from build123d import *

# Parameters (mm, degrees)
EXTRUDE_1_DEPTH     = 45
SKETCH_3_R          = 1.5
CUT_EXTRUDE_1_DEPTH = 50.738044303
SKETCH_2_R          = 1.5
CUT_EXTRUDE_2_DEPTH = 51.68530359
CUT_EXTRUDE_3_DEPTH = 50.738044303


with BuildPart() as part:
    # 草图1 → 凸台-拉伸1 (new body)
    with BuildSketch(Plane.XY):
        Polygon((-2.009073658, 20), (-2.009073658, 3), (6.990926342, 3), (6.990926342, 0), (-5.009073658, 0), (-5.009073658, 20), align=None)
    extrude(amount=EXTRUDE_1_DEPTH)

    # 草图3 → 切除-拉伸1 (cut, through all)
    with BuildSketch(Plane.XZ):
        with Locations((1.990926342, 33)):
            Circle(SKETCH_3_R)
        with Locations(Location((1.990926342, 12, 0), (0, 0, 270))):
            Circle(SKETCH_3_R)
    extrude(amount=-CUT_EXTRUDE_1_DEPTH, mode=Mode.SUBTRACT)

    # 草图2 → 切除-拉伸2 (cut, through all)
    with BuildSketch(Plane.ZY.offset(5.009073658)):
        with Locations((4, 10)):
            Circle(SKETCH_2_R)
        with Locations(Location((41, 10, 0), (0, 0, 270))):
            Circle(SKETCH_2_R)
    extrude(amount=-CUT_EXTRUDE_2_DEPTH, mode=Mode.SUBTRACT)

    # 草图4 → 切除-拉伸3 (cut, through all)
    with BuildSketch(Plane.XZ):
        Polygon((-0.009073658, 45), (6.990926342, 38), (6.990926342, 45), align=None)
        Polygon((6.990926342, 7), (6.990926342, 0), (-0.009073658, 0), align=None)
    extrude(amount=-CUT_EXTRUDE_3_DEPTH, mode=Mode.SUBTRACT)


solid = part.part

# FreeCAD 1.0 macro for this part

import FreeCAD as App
import Part
import Sketcher
Q = App.Units.Quantity


def add_polygon(sketch, points):
    """Adds a closed chain of lines whose ends are joined by coincident constraints."""
    first, n = sketch.GeometryCount, len(points)
    for a, b in zip(points, points[1:] + points[:1]):
        sketch.addGeometry(Part.LineSegment(App.Vector(*a, 0), App.Vector(*b, 0)), False)
    for i in range(n):
        sketch.addConstraint(Sketcher.Constraint("Coincident", first + i, 2, first + (i + 1) % n, 1))

doc = App.newDocument("Part")
params = doc.addObject("Spreadsheet::Sheet", "Params")
for row, (alias, value) in enumerate([
    ("sketch1_width", "3 mm"),
    ("sketch1_width2", "12 mm"),
    ("sketch1_height", "17 mm"),
    ("pad1_length", "45 mm"),
    ("sketch2_diameter", "3 mm"),
    ("sketch3_diameter", "3 mm"),
    ("sketch4_width", "7 mm"),
], start=1):
    params.set(f"A{row}", alias)
    params.set(f"B{row}", "=" + value)
    params.setAlias(f"B{row}", alias)

body = doc.addObject("PartDesign::Body", "Body")

# Sketch on XY plane
sketch1 = doc.addObject("Sketcher::SketchObject", "Sketch")
body.addObject(sketch1)
sketch1.AttachmentSupport = (doc.XY_Plane, [""])
sketch1.MapMode = "FlatFace"
add_polygon(sketch1, [(-2.009074, 3), (-2.009074, 20), (-5.009074, 20), (-5.009074, 0), (6.990926, 0), (6.990926, 3)])  # lines 0-5
sketch1.addConstraint([
    Sketcher.Constraint("Vertical", 0),
    Sketcher.Constraint("Horizontal", 1),
    Sketcher.Constraint("Vertical", 2),
    Sketcher.Constraint("Horizontal", 3),
    Sketcher.Constraint("Vertical", 4),
    Sketcher.Constraint("Horizontal", 5),
    Sketcher.Constraint("PointOnObject", 2, 2, -1),
    Sketcher.Constraint("Equal", 1, 4),
    Sketcher.Constraint("DistanceX", 1, 2, 1, 1, Q("3 mm")),
    Sketcher.Constraint("DistanceX", 3, 1, 3, 2, Q("12 mm")),
    Sketcher.Constraint("DistanceY", 0, 1, 0, 2, Q("17 mm")),
    Sketcher.Constraint("DistanceX", 0, 2, -1, 1, Q("2.009074 mm")),
])
sketch1.setExpression("Constraints[14]", "Params.sketch1_width")
sketch1.setExpression("Constraints[15]", "Params.sketch1_width2")
sketch1.setExpression("Constraints[16]", "Params.sketch1_height")
pad1 = doc.addObject("PartDesign::Pad", "Pad")
body.addObject(pad1)
pad1.Profile = sketch1
pad1.setExpression("Length", "Params.pad1_length")

# Sketch on XZ plane
sketch2 = doc.addObject("Sketcher::SketchObject", "Sketch001")
body.addObject(sketch2)
sketch2.AttachmentSupport = (doc.XZ_Plane, [""])
sketch2.MapMode = "FlatFace"
sketch2.addGeometry([
    Part.Circle(App.Vector(1.990926, 33, 0), App.Vector(0, 0, 1), 1.5),
    Part.Circle(App.Vector(1.990926, 12, 0), App.Vector(0, 0, 1), 1.5),
], False)
sketch2.addConstraint([
    Sketcher.Constraint("Equal", 0, 1),
    Sketcher.Constraint("Vertical", 0, 3, 1, 3),
    Sketcher.Constraint("Diameter", 0, Q("3 mm")),
    Sketcher.Constraint("DistanceY", -1, 1, 0, 3, Q("33 mm")),
    Sketcher.Constraint("DistanceY", -1, 1, 1, 3, Q("12 mm")),
    Sketcher.Constraint("DistanceX", -1, 1, 0, 3, Q("1.990926 mm")),
])
sketch2.setExpression("Constraints[2]", "Params.sketch2_diameter")
pocket1 = doc.addObject("PartDesign::Pocket", "Pocket")
body.addObject(pocket1)
pocket1.Profile = sketch2
pocket1.Type = "ThroughAll"

# Sketch on YZ plane
sketch3 = doc.addObject("Sketcher::SketchObject", "Sketch002")
body.addObject(sketch3)
sketch3.AttachmentSupport = (doc.YZ_Plane, [""])
sketch3.MapMode = "FlatFace"
sketch3.AttachmentOffset = App.Placement(App.Vector(0, 0, -5.009074), App.Rotation())
sketch3.addGeometry([
    Part.Circle(App.Vector(10, 4, 0), App.Vector(0, 0, 1), 1.5),
    Part.Circle(App.Vector(10, 41, 0), App.Vector(0, 0, 1), 1.5),
], False)
sketch3.addConstraint([
    Sketcher.Constraint("Equal", 0, 1),
    Sketcher.Constraint("Vertical", 0, 3, 1, 3),
    Sketcher.Constraint("Diameter", 0, Q("3 mm")),
    Sketcher.Constraint("DistanceX", -1, 1, 0, 3, Q("10 mm")),
    Sketcher.Constraint("DistanceY", -1, 1, 0, 3, Q("4 mm")),
    Sketcher.Constraint("DistanceY", -1, 1, 1, 3, Q("41 mm")),
])
sketch3.setExpression("Constraints[2]", "Params.sketch3_diameter")
pocket2 = doc.addObject("PartDesign::Pocket", "Pocket001")
body.addObject(pocket2)
pocket2.Profile = sketch3
pocket2.Type = "ThroughAll"
pocket2.Reversed = True

# Sketch on XZ plane
sketch4 = doc.addObject("Sketcher::SketchObject", "Sketch003")
body.addObject(sketch4)
sketch4.AttachmentSupport = (doc.XZ_Plane, [""])
sketch4.MapMode = "FlatFace"
add_polygon(sketch4, [(-0.009074, 45), (6.990926, 38), (6.990926, 45)])  # lines 0-2
add_polygon(sketch4, [(6.990926, 0), (6.990926, 7), (-0.009074, 0)])  # lines 3-5
sketch4.addConstraint([
    Sketcher.Constraint("Vertical", 1),
    Sketcher.Constraint("Horizontal", 2),
    Sketcher.Constraint("Vertical", 3),
    Sketcher.Constraint("Horizontal", 5),
    Sketcher.Constraint("PointOnObject", 4, 2, -1),
    Sketcher.Constraint("Perpendicular", 0, 4),
    Sketcher.Constraint("Vertical", 1, 2, 3, 2),
    Sketcher.Constraint("Vertical", 2, 2, 4, 2),
    Sketcher.Constraint("Equal", 5, 1),
    Sketcher.Constraint("DistanceX", 2, 2, 2, 1, Q("7 mm")),
    Sketcher.Constraint("DistanceY", -1, 1, 0, 2, Q("38 mm")),
    Sketcher.Constraint("DistanceX", -1, 1, 0, 2, Q("6.990926 mm")),
])
sketch4.setExpression("Constraints[15]", "Params.sketch4_width")
pocket3 = doc.addObject("PartDesign::Pocket", "Pocket002")
body.addObject(pocket3)
pocket3.Profile = sketch4
pocket3.Type = "ThroughAll"

doc.recompute()
